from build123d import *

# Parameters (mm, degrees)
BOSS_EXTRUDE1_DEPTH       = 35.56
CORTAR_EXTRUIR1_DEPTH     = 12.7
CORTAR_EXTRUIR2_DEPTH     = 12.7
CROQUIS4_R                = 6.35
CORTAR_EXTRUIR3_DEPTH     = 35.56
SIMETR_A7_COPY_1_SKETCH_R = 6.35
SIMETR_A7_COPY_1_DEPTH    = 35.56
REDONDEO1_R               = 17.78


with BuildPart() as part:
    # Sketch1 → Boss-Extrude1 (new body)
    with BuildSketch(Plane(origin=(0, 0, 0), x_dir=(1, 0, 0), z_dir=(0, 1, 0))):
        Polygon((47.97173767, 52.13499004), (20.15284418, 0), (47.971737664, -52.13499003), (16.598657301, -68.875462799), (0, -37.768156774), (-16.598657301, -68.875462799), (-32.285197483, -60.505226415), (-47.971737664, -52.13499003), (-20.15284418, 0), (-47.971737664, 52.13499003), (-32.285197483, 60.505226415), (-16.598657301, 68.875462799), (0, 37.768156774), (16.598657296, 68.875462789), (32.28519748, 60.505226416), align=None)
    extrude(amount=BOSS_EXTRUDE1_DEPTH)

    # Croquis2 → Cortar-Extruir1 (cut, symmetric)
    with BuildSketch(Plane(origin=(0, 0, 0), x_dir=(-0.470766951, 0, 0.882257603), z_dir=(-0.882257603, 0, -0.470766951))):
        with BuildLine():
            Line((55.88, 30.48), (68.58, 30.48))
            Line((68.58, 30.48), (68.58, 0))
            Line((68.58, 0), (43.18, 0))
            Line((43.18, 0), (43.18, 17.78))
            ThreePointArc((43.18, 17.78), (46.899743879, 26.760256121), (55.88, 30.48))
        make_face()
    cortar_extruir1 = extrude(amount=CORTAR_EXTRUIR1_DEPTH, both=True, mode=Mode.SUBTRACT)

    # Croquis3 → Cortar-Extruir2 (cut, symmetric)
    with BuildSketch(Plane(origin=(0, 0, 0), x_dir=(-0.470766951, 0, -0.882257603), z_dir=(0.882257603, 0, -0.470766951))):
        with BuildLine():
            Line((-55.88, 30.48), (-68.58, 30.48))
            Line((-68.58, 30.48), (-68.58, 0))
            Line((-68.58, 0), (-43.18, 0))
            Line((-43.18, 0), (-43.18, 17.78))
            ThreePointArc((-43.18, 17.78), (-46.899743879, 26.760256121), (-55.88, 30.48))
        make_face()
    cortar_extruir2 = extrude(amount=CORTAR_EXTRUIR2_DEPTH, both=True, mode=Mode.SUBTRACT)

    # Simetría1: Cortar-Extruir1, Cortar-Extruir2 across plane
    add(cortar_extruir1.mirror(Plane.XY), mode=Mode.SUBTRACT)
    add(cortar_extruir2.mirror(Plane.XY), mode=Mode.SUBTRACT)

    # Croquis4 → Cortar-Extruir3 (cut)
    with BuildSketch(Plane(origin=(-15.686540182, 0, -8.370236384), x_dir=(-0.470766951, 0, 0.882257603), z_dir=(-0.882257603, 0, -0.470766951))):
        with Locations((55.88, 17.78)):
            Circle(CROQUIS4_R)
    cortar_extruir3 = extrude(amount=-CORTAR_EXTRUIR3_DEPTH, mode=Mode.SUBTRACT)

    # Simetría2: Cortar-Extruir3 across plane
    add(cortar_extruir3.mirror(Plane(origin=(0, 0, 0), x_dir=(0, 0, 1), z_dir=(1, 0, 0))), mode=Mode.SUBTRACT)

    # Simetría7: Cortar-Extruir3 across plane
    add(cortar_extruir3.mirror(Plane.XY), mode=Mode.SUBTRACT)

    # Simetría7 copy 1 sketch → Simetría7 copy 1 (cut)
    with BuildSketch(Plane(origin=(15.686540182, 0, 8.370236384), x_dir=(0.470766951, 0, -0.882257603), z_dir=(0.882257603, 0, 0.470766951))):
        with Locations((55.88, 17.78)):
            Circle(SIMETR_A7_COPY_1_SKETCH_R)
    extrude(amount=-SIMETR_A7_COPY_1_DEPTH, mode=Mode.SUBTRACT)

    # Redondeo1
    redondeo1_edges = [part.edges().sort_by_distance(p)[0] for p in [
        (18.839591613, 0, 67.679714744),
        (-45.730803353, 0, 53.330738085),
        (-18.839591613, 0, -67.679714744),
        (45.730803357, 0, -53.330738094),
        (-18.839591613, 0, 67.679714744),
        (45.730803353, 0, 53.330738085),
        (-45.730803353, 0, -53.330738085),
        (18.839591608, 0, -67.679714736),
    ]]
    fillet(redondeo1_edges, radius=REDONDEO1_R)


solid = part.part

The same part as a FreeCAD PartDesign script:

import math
import FreeCAD as App
import Part
import Sketcher
Q = App.Units.Quantity


def edges_at(feature, points):
    """Names of the edges that pass closest to the given points."""
    edges = feature.Shape.Edges
    near = lambda p: min(range(len(edges)), key=lambda i: edges[i].distToShape(Part.Vertex(*p))[0])
    return sorted({f"Edge{near(p) + 1}" for p in points})


def add_polygon(sketch, points):
    """Adds a closed chain of lines whose ends are joined by coincident constraints."""
    first, n = sketch.GeometryCount, len(points)
    for a, b in zip(points, points[1:] + points[:1]):
        sketch.addGeometry(Part.LineSegment(App.Vector(*a, 0), App.Vector(*b, 0)), False)
    for i in range(n):
        sketch.addConstraint(Sketcher.Constraint("Coincident", first + i, 2, first + (i + 1) % n, 1))

doc = App.newDocument("Part")
body = doc.addObject("PartDesign::Body", "Body")

# Sketch on XZ plane
sketch1 = body.newObject("Sketcher::SketchObject", "Sketch")
sketch1.AttachmentSupport = (doc.getObject("XZ_Plane"), [""])
sketch1.MapMode = "FlatFace"
add_polygon(sketch1, [(20, 0), (48, -52), (32, -61), (17, -69), (0, -38), (-17, -69), (-32, -61), (-48, -52), (-20, 0), (-48, 52), (-32, 61), (-17, 69), (0, 38), (17, 69), (48, 52)])  # lines 0-14
sketch1.addConstraint([
    Sketcher.Constraint("Symmetric", 0, 2, 8, 2, -1, 1),
    Sketcher.Constraint("Symmetric", 1, 2, 9, 2, -1, 1),
    Sketcher.Constraint("Symmetric", 2, 2, 10, 2, -1, 1),
    Sketcher.Constraint("Symmetric", 3, 2, 11, 2, -1, 1),
    Sketcher.Constraint("Symmetric", 4, 2, 12, 2, -1, 1),
    Sketcher.Constraint("Symmetric", 6, 2, 13, 2, -1, 1),
    Sketcher.Constraint("Symmetric", 7, 2, 14, 2, -1, 1),
    Sketcher.Constraint("Symmetric", 2, 2, 4, 2, -2),
    Sketcher.Constraint("Symmetric", 1, 2, 5, 2, -2),
    Sketcher.Constraint("Symmetric", 0, 2, 6, 2, -2),
    Sketcher.Constraint("PointOnObject", 3, 2, -2),
    Sketcher.Constraint("PointOnObject", 7, 2, -1),
    Sketcher.Constraint("Perpendicular", 0, 1),
    Sketcher.Constraint("Parallel", 1, 2),
    Sketcher.Constraint("Perpendicular", 2, 3),
    Sketcher.Constraint("Equal", 1, 2),
    Sketcher.Constraint("Distance", 1, Q("0.7 in")),
    Sketcher.Constraint("DistanceX", 7, 2, 2, 2, Q("36.751501 mm")),
    Sketcher.Constraint("DistanceY", 0, 2, -1, 1, Q("52.13499 mm")),
    Sketcher.Constraint("DistanceX", 1, 2, 0, 2, Q("15.68654 mm")),
])
pad1 = body.newObject("PartDesign::Pad", "Pad")
pad1.Profile = sketch1
pad1.Length = Q("1.4 in")
pad1.Reversed = True

# Sketch on an angled plane
sketch2 = body.newObject("Sketcher::SketchObject", "Sketch001")
sketch2.Placement = App.Placement(App.Vector(0, 0, 0), App.Rotation(App.Vector(-0.470766951, 0, 0.882257603), App.Vector(0, 1, 0), App.Vector(-0.882257603, 0, -0.470766951), "ZXY"))
sketch2.addGeometry([
    Part.LineSegment(App.Vector(69, 30, 0), App.Vector(56, 30, 0)),  # 0
    Part.ArcOfCircle(Part.Circle(App.Vector(56, 18, 0), App.Vector(0, 0, 1), 13), math.radians(90), math.radians(180)),  # 1
    Part.LineSegment(App.Vector(43, 18, 0), App.Vector(43, 0, 0)),  # 2
    Part.LineSegment(App.Vector(43, 0, 0), App.Vector(69, 0, 0)),  # 3
    Part.LineSegment(App.Vector(69, 0, 0), App.Vector(69, 30, 0)),  # 4
], False)
sketch2.addConstraint([
    Sketcher.Constraint("Tangent", 0, 2, 1, 1),
    Sketcher.Constraint("Tangent", 1, 2, 2, 1),
    Sketcher.Constraint("Coincident", 2, 2, 3, 1),
    Sketcher.Constraint("Coincident", 3, 2, 4, 1),
    Sketcher.Constraint("Coincident", 4, 2, 0, 1),
    Sketcher.Constraint("Horizontal", 0),
    Sketcher.Constraint("Vertical", 2),
    Sketcher.Constraint("Horizontal", 3),
    Sketcher.Constraint("Vertical", 4),
    Sketcher.Constraint("PointOnObject", 2, 2, -1),
    Sketcher.Constraint("Radius", 1, Q("0.5 in")),
    Sketcher.Constraint("DistanceX", 3, 1, 3, 2, Q("1 in")),
    Sketcher.Constraint("DistanceY", 2, 2, 2, 1, Q("0.7 in")),
    Sketcher.Constraint("DistanceX", -1, 1, 1, 3, Q("2.2 in")),
])
pocket1 = body.newObject("PartDesign::Pocket", "Pocket")
pocket1.Profile = sketch2
pocket1.Length = Q("1 in")
pocket1.Midplane = True

# Sketch on an angled plane
sketch3 = body.newObject("Sketcher::SketchObject", "Sketch002")
sketch3.Placement = App.Placement(App.Vector(0, 0, 0), App.Rotation(App.Vector(-0.470766951, 0, -0.882257603), App.Vector(0, 1, 0), App.Vector(0.882257603, 0, -0.470766951), "ZXY"))
sketch3.addGeometry([
    Part.LineSegment(App.Vector(-56, 30, 0), App.Vector(-69, 30, 0)),  # 0
    Part.LineSegment(App.Vector(-69, 30, 0), App.Vector(-69, 0, 0)),  # 1
    Part.LineSegment(App.Vector(-69, 0, 0), App.Vector(-43, 0, 0)),  # 2
    Part.LineSegment(App.Vector(-43, 0, 0), App.Vector(-43, 18, 0)),  # 3
    Part.ArcOfCircle(Part.Circle(App.Vector(-56, 18, 0), App.Vector(0, 0, 1), 13), math.radians(0), math.radians(90)),  # 4
], False)
sketch3.addConstraint([
    Sketcher.Constraint("Coincident", 0, 2, 1, 1),
    Sketcher.Constraint("Coincident", 1, 2, 2, 1),
    Sketcher.Constraint("Coincident", 2, 2, 3, 1),
    Sketcher.Constraint("Tangent", 3, 2, 4, 1),
    Sketcher.Constraint("Tangent", 4, 2, 0, 1),
    Sketcher.Constraint("Horizontal", 0),
    Sketcher.Constraint("Vertical", 1),
    Sketcher.Constraint("Horizontal", 2),
    Sketcher.Constraint("Vertical", 3),
    Sketcher.Constraint("PointOnObject", 1, 2, -1),
    Sketcher.Constraint("Radius", 4, Q("0.5 in")),
    Sketcher.Constraint("DistanceX", 2, 1, 2, 2, Q("1 in")),
    Sketcher.Constraint("DistanceY", 1, 2, 1, 1, Q("1.2 in")),
    Sketcher.Constraint("DistanceX", 4, 3, -1, 1, Q("2.2 in")),
])
pocket2 = body.newObject("PartDesign::Pocket", "Pocket001")
pocket2.Profile = sketch3
pocket2.Length = Q("1 in")
pocket2.Midplane = True
doc.recompute()

mirrored = body.newObject("PartDesign::Mirrored", "Mirrored")
mirrored.Originals = [pocket1, pocket2]
mirrored.MirrorPlane = (doc.getObject("XY_Plane"), [""])
body.Tip = mirrored

# Sketch on an angled plane
sketch4 = body.newObject("Sketcher::SketchObject", "Sketch003")
sketch4.Placement = App.Placement(App.Vector(-15.68654, 0, -8.370236), App.Rotation(App.Vector(-0.470766951, 0, 0.882257603), App.Vector(0, 1, 0), App.Vector(-0.882257603, 0, -0.470766951), "ZXY"))
sketch4.addGeometry(Part.Circle(App.Vector(56, 18, 0), App.Vector(0, 0, 1), 6), False)
sketch4.addConstraint([
    Sketcher.Constraint("Diameter", 0, Q("0.5 in")),
    Sketcher.Constraint("DistanceX", -1, 1, 0, 3, Q("2.2 in")),
    Sketcher.Constraint("DistanceY", -1, 1, 0, 3, Q("0.7 in")),
])
pocket3 = body.newObject("PartDesign::Pocket", "Pocket002")
pocket3.Profile = sketch4
pocket3.Length = Q("1.4 in")
doc.recompute()

mirrored2 = body.newObject("PartDesign::Mirrored", "Mirrored001")
mirrored2.Originals = [pocket3]
mirrored2.MirrorPlane = (doc.getObject("YZ_Plane"), [""])
body.Tip = mirrored2
doc.recompute()

mirrored3 = body.newObject("PartDesign::Mirrored", "Mirrored002")
mirrored3.Originals = [pocket3]
mirrored3.MirrorPlane = (doc.getObject("XY_Plane"), [""])
body.Tip = mirrored3

# Sketch on an angled plane
sketch5 = body.newObject("Sketcher::SketchObject", "Sketch004")
sketch5.Placement = App.Placement(App.Vector(15.68654, 0, 8.370236), App.Rotation(App.Vector(0.470766951, 0, -0.882257603), App.Vector(0, 1, 0), App.Vector(0.882257603, 0, 0.470766951), "ZXY"))
sketch5.addGeometry(Part.Circle(App.Vector(56, 18, 0), App.Vector(0, 0, 1), 6), False)
sketch5.addConstraint([
    Sketcher.Constraint("Diameter", 0, Q("0.5 in")),
    Sketcher.Constraint("DistanceX", -1, 1, 0, 3, Q("2.2 in")),
    Sketcher.Constraint("DistanceY", -1, 1, 0, 3, Q("0.7 in")),
])
pocket4 = body.newObject("PartDesign::Pocket", "Pocket003")
pocket4.Profile = sketch5
pocket4.Length = Q("1.4 in")
doc.recompute()

fillet = body.newObject("PartDesign::Fillet", "Fillet")
fillet.Base = (pocket4, edges_at(pocket4, [
    (18.84, 0, 67.68),
    (-45.731, 0, 53.331),
    (-18.84, 0, -67.68),
    (45.731, 0, -53.331),
    (-18.84, 0, 67.68),
    (45.731, 0, 53.331),
    (-45.731, 0, -53.331),
    (18.84, 0, -67.68),
]))
fillet.Radius = Q("0.7 in")

doc.recompute()
